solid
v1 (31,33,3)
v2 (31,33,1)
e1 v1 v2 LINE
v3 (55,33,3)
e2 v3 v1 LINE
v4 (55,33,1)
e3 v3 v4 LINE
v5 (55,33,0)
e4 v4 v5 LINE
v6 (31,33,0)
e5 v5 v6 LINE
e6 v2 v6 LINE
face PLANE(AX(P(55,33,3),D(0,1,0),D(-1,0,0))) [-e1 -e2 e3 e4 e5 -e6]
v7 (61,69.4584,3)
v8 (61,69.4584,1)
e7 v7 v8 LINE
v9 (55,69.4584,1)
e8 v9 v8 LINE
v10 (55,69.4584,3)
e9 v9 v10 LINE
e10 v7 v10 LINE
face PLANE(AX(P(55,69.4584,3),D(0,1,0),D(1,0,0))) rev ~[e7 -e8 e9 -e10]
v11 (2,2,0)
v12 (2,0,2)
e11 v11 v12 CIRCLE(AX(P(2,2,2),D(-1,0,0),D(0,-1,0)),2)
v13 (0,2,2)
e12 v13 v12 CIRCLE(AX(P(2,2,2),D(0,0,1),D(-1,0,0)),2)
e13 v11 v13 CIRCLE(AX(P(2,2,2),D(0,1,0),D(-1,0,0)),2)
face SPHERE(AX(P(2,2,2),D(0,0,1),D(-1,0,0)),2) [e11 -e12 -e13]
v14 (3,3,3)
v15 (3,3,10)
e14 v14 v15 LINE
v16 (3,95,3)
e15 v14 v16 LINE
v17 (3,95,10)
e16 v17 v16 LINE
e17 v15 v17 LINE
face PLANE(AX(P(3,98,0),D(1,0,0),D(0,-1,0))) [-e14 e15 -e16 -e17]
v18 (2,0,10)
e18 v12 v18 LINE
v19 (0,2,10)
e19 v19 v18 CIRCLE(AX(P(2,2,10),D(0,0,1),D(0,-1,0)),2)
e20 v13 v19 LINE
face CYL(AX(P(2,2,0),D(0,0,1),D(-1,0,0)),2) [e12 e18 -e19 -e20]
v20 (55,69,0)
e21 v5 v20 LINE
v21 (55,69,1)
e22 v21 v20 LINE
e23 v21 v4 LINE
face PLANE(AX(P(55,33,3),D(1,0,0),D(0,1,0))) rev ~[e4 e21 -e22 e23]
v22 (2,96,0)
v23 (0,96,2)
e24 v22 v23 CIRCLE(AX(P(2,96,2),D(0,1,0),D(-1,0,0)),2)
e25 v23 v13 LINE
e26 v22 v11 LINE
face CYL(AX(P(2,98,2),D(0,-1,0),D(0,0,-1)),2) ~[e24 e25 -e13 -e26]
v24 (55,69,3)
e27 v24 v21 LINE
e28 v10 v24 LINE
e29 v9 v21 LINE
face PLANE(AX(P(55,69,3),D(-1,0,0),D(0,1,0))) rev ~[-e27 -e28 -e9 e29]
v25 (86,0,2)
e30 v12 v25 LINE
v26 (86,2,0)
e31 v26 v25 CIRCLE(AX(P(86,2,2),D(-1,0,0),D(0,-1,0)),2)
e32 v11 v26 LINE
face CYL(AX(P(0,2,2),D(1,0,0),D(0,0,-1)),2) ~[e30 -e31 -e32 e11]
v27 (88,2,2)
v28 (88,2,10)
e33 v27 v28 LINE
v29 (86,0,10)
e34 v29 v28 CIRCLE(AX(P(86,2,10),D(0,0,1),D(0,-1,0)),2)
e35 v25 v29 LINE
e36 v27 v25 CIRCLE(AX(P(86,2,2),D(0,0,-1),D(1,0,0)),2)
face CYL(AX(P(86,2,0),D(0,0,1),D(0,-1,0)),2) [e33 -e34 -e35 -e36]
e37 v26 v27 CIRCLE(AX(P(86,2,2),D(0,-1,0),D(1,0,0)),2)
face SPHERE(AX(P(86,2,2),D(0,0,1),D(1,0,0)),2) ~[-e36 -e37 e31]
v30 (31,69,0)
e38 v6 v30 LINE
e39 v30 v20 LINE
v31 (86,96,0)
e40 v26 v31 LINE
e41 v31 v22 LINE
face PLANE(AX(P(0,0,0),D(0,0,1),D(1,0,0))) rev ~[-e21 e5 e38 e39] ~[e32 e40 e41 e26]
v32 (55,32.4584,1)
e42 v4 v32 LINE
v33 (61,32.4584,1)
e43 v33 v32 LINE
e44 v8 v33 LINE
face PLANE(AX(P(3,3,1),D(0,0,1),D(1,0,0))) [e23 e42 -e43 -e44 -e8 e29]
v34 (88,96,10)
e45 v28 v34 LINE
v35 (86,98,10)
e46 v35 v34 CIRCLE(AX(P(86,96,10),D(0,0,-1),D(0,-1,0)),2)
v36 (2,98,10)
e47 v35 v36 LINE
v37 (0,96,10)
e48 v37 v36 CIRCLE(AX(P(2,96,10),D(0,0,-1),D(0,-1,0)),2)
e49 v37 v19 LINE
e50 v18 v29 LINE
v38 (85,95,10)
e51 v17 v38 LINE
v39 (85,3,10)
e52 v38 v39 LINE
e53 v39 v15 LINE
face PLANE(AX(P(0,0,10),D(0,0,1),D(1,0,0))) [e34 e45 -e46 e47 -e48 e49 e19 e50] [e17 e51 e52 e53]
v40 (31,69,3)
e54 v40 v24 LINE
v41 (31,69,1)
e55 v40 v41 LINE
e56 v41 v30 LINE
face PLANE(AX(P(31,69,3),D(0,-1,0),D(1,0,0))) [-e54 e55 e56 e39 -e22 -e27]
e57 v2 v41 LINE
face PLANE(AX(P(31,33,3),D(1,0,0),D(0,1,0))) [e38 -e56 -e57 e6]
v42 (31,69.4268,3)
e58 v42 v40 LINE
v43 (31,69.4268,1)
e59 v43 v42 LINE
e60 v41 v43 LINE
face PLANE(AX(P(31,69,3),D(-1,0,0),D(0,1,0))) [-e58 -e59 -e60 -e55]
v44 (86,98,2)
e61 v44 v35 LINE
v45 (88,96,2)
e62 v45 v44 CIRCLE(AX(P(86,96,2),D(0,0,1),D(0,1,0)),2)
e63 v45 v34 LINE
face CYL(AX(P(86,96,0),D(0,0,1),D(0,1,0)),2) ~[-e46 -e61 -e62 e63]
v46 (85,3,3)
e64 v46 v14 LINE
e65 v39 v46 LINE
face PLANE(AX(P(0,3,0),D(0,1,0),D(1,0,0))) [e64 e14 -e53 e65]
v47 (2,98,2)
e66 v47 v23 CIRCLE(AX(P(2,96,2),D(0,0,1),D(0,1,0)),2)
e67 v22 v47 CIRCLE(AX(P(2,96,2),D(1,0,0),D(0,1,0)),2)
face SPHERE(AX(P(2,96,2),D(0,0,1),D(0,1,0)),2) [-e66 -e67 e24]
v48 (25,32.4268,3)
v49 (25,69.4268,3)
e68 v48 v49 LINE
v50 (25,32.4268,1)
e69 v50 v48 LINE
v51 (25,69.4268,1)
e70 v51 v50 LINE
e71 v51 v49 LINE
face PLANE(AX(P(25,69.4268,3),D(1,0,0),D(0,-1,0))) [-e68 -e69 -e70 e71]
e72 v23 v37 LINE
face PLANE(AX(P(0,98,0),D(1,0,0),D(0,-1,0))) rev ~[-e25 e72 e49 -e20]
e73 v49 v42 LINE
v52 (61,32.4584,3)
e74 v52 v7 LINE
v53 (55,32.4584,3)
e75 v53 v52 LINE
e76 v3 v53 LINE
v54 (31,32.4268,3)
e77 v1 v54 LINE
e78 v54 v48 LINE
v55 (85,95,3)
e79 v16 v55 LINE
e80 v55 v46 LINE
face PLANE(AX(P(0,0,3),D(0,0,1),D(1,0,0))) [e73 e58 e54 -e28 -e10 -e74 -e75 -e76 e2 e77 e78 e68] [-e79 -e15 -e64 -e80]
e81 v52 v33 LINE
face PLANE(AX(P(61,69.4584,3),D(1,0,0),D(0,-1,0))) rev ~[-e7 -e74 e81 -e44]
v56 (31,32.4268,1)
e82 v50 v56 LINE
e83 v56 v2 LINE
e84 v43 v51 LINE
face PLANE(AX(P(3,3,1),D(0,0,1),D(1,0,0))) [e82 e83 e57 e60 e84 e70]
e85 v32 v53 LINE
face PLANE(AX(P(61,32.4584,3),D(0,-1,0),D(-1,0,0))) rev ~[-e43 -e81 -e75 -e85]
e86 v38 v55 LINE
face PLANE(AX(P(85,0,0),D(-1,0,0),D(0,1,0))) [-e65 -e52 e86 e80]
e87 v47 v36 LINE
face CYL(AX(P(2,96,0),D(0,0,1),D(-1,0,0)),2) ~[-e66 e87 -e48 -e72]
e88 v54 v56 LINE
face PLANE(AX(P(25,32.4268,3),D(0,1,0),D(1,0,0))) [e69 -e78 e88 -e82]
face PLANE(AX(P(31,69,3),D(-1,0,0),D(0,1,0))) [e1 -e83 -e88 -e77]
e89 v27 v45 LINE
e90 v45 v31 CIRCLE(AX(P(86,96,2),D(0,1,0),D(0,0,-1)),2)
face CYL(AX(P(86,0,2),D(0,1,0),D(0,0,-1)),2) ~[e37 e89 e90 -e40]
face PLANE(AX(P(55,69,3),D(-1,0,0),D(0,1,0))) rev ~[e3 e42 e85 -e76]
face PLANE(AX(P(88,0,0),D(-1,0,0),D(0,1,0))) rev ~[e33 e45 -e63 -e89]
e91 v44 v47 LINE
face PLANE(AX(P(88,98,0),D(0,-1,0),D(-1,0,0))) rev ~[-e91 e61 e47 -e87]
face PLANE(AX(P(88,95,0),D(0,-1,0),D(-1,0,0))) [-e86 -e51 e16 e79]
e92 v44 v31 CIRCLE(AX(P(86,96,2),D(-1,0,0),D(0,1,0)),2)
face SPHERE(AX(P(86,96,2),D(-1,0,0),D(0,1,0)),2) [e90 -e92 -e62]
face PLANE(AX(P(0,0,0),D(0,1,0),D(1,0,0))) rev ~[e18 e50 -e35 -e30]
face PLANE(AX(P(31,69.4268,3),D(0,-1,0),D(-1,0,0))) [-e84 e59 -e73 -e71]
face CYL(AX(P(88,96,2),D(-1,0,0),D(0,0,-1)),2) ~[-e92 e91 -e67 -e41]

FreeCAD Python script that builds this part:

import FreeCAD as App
import Part
import Sketcher

V = App.Vector
Q = App.Units.Quantity


def edges_at(feature, points):
    """Names of the edges that pass closest to the given points."""
    edges = feature.Shape.Edges
    near = lambda p: min(range(len(edges)), key=lambda i: edges[i].distToShape(Part.Vertex(*p))[0])
    return sorted({f"Edge{near(p) + 1}" for p in points})


def faces_at(feature, points):
    """Names of the faces that lie closest to the given points."""
    faces = feature.Shape.Faces
    near = lambda p: min(range(len(faces)), key=lambda i: faces[i].distToShape(Part.Vertex(*p))[0])
    return sorted({f"Face{near(p) + 1}" for p in points})

doc = App.newDocument("Part")
params = doc.addObject("Spreadsheet::Sheet", "Params")
for row, (alias, value) in enumerate([
    ("sketch1_width", "88 mm"),
    ("sketch1_height", "98 mm"),
    ("pad1_length", "10 mm"),
    ("thickness_wall", "3 mm"),
    ("sketch2_width", "24 mm"),
    ("sketch2_height", "36 mm"),
    ("pocket1_length", "3 mm"),
    ("sketch3_width", "6 mm"),
    ("sketch3_height", "37 mm"),
    ("pocket2_length", "4 mm"),
    ("sketch4_width", "6 mm"),
    ("sketch4_height", "37 mm"),
    ("pocket3_length", "4 mm"),
    ("fillet_radius", "2 mm"),
], start=1):
    params.set(f"A{row}", alias)
    params.set(f"B{row}", "=" + value)
    params.setAlias(f"B{row}", alias)

body = doc.addObject("PartDesign::Body", "Body")

sketch1 = doc.addObject("Sketcher::SketchObject", "Sketch")
body.addObject(sketch1)
sketch1.AttachmentSupport = (doc.XY_Plane, [""])
sketch1.MapMode = "FlatFace"
sketch1.addGeometry(Part.LineSegment(V(0, 98, 0), V(0, 0, 0)), False)
sketch1.addGeometry(Part.LineSegment(V(0, 0, 0), V(88, 0, 0)), False)
sketch1.addGeometry(Part.LineSegment(V(88, 0, 0), V(88, 98, 0)), False)
sketch1.addGeometry(Part.LineSegment(V(88, 98, 0), V(0, 98, 0)), False)
sketch1.addConstraint(Sketcher.Constraint("Coincident", 0, 2, 1, 1))
sketch1.addConstraint(Sketcher.Constraint("Coincident", 1, 2, 2, 1))
sketch1.addConstraint(Sketcher.Constraint("Coincident", 2, 2, 3, 1))
sketch1.addConstraint(Sketcher.Constraint("Coincident", 3, 2, 0, 1))
sketch1.addConstraint(Sketcher.Constraint("Vertical", 0))
sketch1.addConstraint(Sketcher.Constraint("Horizontal", 1))
sketch1.addConstraint(Sketcher.Constraint("Vertical", 2))
sketch1.addConstraint(Sketcher.Constraint("Horizontal", 3))
sketch1.addConstraint(Sketcher.Constraint("Coincident", 0, 2, -1, 1))
sketch1.addConstraint(Sketcher.Constraint("DistanceX", 1, 1, 1, 2, Q("88 mm")))
sketch1.addConstraint(Sketcher.Constraint("DistanceY", 0, 2, 0, 1, Q("98 mm")))
sketch1.setExpression("Constraints[9]", "Params.sketch1_width")
sketch1.setExpression("Constraints[10]", "Params.sketch1_height")
pad1 = doc.addObject("PartDesign::Pad", "Pad")
body.addObject(pad1)
pad1.Profile = sketch1
pad1.setExpression("Length", "Params.pad1_length")
doc.recompute()

thickness = doc.addObject("PartDesign::Thickness", "Thickness")
body.addObject(thickness)
thickness.Base = (pad1, faces_at(pad1, [(58.667, 32.667, 10)]))
thickness.setExpression("Value", "Params.thickness_wall")
thickness.Reversed = True
thickness.Join = "Intersection"

sketch2 = doc.addObject("Sketcher::SketchObject", "Sketch001")
body.addObject(sketch2)
sketch2.AttachmentSupport = (doc.XY_Plane, [""])
sketch2.MapMode = "FlatFace"
sketch2.AttachmentOffset = App.Placement(V(0, 0, 3), App.Rotation())
sketch2.addGeometry(Part.LineSegment(V(55, 33, 0), V(55, 69, 0)), False)
sketch2.addGeometry(Part.LineSegment(V(55, 69, 0), V(31, 69, 0)), False)
sketch2.addGeometry(Part.LineSegment(V(31, 69, 0), V(31, 33, 0)), False)
sketch2.addGeometry(Part.LineSegment(V(31, 33, 0), V(55, 33, 0)), False)
sketch2.addConstraint(Sketcher.Constraint("Coincident", 0, 2, 1, 1))
sketch2.addConstraint(Sketcher.Constraint("Coincident", 1, 2, 2, 1))
sketch2.addConstraint(Sketcher.Constraint("Coincident", 2, 2, 3, 1))
sketch2.addConstraint(Sketcher.Constraint("Coincident", 3, 2, 0, 1))
sketch2.addConstraint(Sketcher.Constraint("Vertical", 0))
sketch2.addConstraint(Sketcher.Constraint("Horizontal", 1))
sketch2.addConstraint(Sketcher.Constraint("Vertical", 2))
sketch2.addConstraint(Sketcher.Constraint("Horizontal", 3))
sketch2.addConstraint(Sketcher.Constraint("DistanceX", 1, 2, 1, 1, Q("24 mm")))
sketch2.addConstraint(Sketcher.Constraint("DistanceY", 0, 1, 0, 2, Q("36 mm")))
sketch2.addConstraint(Sketcher.Constraint("DistanceX", -1, 1, 0, 2, Q("55 mm")))
sketch2.addConstraint(Sketcher.Constraint("DistanceY", -1, 1, 0, 2, Q("69 mm")))
sketch2.setExpression("Constraints[8]", "Params.sketch2_width")
sketch2.setExpression("Constraints[9]", "Params.sketch2_height")
pocket1 = doc.addObject("PartDesign::Pocket", "Pocket")
body.addObject(pocket1)
pocket1.Profile = sketch2
pocket1.setExpression("Length", "Params.pocket1_length")

sketch3 = doc.addObject("Sketcher::SketchObject", "Sketch002")
body.addObject(sketch3)
sketch3.AttachmentSupport = (doc.XY_Plane, [""])
sketch3.MapMode = "FlatFace"
sketch3.AttachmentOffset = App.Placement(V(0, 0, 3), App.Rotation())
sketch3.addGeometry(Part.LineSegment(V(31, 32.4268, 0), V(31, 69.4268, 0)), False)
sketch3.addGeometry(Part.LineSegment(V(31, 69.4268, 0), V(25, 69.4268, 0)), False)
sketch3.addGeometry(Part.LineSegment(V(25, 69.4268, 0), V(25, 32.4268, 0)), False)
sketch3.addGeometry(Part.LineSegment(V(25, 32.4268, 0), V(31, 32.4268, 0)), False)
sketch3.addConstraint(Sketcher.Constraint("Coincident", 0, 2, 1, 1))
sketch3.addConstraint(Sketcher.Constraint("Coincident", 1, 2, 2, 1))
sketch3.addConstraint(Sketcher.Constraint("Coincident", 2, 2, 3, 1))
sketch3.addConstraint(Sketcher.Constraint("Coincident", 3, 2, 0, 1))
sketch3.addConstraint(Sketcher.Constraint("Vertical", 0))
sketch3.addConstraint(Sketcher.Constraint("Horizontal", 1))
sketch3.addConstraint(Sketcher.Constraint("Vertical", 2))
sketch3.addConstraint(Sketcher.Constraint("Horizontal", 3))
sketch3.addConstraint(Sketcher.Constraint("DistanceX", 1, 2, 1, 1, Q("6 mm")))
sketch3.addConstraint(Sketcher.Constraint("DistanceY", 0, 1, 0, 2, Q("37 mm")))
sketch3.addConstraint(Sketcher.Constraint("DistanceX", -1, 1, 0, 2, Q("31 mm")))
sketch3.addConstraint(Sketcher.Constraint("DistanceY", -1, 1, 0, 2, Q("69.4268 mm")))
sketch3.setExpression("Constraints[8]", "Params.sketch3_width")
sketch3.setExpression("Constraints[9]", "Params.sketch3_height")
pocket2 = doc.addObject("PartDesign::Pocket", "Pocket001")
body.addObject(pocket2)
pocket2.Profile = sketch3
pocket2.setExpression("Length", "Params.pocket2_length")
pocket2.Midplane = True

sketch4 = doc.addObject("Sketcher::SketchObject", "Sketch003")
body.addObject(sketch4)
sketch4.AttachmentSupport = (doc.XY_Plane, [""])
sketch4.MapMode = "FlatFace"
sketch4.AttachmentOffset = App.Placement(V(0, 0, 3), App.Rotation())
sketch4.addGeometry(Part.LineSegment(V(61, 69.4584, 0), V(55, 69.4584, 0)), False)
sketch4.addGeometry(Part.LineSegment(V(55, 69.4584, 0), V(55, 32.4584, 0)), False)
sketch4.addGeometry(Part.LineSegment(V(55, 32.4584, 0), V(61, 32.4584, 0)), False)
sketch4.addGeometry(Part.LineSegment(V(61, 32.4584, 0), V(61, 69.4584, 0)), False)
sketch4.addConstraint(Sketcher.Constraint("Coincident", 0, 2, 1, 1))
sketch4.addConstraint(Sketcher.Constraint("Coincident", 1, 2, 2, 1))
sketch4.addConstraint(Sketcher.Constraint("Coincident", 2, 2, 3, 1))
sketch4.addConstraint(Sketcher.Constraint("Coincident", 3, 2, 0, 1))
sketch4.addConstraint(Sketcher.Constraint("Horizontal", 0))
sketch4.addConstraint(Sketcher.Constraint("Vertical", 1))
sketch4.addConstraint(Sketcher.Constraint("Horizontal", 2))
sketch4.addConstraint(Sketcher.Constraint("Vertical", 3))
sketch4.addConstraint(Sketcher.Constraint("DistanceX", 0, 2, 0, 1, Q("6 mm")))
sketch4.addConstraint(Sketcher.Constraint("DistanceY", 1, 2, 1, 1, Q("37 mm")))
sketch4.addConstraint(Sketcher.Constraint("DistanceX", -1, 1, 0, 2, Q("55 mm")))
sketch4.addConstraint(Sketcher.Constraint("DistanceY", -1, 1, 0, 2, Q("69.4584 mm")))
sketch4.setExpression("Constraints[8]", "Params.sketch4_width")
sketch4.setExpression("Constraints[9]", "Params.sketch4_height")
pocket3 = doc.addObject("PartDesign::Pocket", "Pocket002")
body.addObject(pocket3)
pocket3.Profile = sketch4
pocket3.setExpression("Length", "Params.pocket3_length")
pocket3.Midplane = True
doc.recompute()

fillet = doc.addObject("PartDesign::Fillet", "Fillet")
body.addObject(fillet)
fillet.Base = (pocket3, edges_at(pocket3, [
    (0, 0, 5),
    (0, 98, 5),
    (44, 98, 0),
    (88, 98, 5),
    (88, 0, 5),
    (88, 49, 0),
    (0, 49, 0),
    (44, 0, 0),
]))
fillet.setExpression("Radius", "Params.fillet_radius")

doc.recompute()
